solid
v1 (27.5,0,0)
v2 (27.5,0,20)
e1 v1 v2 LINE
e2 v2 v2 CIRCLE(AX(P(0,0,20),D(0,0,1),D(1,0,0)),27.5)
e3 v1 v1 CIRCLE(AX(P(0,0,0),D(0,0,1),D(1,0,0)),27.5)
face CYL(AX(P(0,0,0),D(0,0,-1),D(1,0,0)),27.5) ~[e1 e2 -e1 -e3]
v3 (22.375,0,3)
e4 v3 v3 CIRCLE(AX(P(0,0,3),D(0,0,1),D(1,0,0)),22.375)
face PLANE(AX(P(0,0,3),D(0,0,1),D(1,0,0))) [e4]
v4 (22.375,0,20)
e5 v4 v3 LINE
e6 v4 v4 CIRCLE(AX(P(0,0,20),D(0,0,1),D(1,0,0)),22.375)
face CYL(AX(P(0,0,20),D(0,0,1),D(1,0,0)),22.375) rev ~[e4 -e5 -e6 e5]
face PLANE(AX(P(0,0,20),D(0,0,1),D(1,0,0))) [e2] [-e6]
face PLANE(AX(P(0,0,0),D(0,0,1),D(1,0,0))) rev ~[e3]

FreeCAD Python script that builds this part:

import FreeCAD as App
import Part
import Sketcher

V = App.Vector

doc = App.newDocument("Part")
params = doc.addObject("Spreadsheet::Sheet", "Params")
for row, (alias, value) in enumerate([
    ("sketch1_diameter", "55 mm"),
    ("pad1_length", "20 mm"),
    ("sketch2_diameter", "44.75 mm"),
    ("pocket1_length", "17 mm"),
], start=1):
    params.set(f"A{row}", alias)
    params.set(f"B{row}", "=" + value)
    params.setAlias(f"B{row}", alias)

body = doc.addObject("PartDesign::Body", "Body")

sketch1 = body.newObject("Sketcher::SketchObject", "Sketch")
sketch1.AttachmentSupport = (doc.getObject("XY_Plane"), [""])
sketch1.MapMode = "FlatFace"
sketch1.addGeometry(Part.Circle(V(0, 0, 0), V(0, 0, 1), 27.5), False)
sketch1.addConstraint([
    Sketcher.Constraint("Coincident", 0, 3, -1, 1),
    Sketcher.Constraint("Diameter", 0, 55.0),
])
sketch1.setExpression("Constraints[1]", "Params.sketch1_diameter")
pad1 = body.newObject("PartDesign::Pad", "Pad")
pad1.Profile = sketch1
pad1.setExpression("Length", "Params.pad1_length")

sketch2 = body.newObject("Sketcher::SketchObject", "Sketch001")
sketch2.AttachmentSupport = (doc.getObject("XY_Plane"), [""])
sketch2.MapMode = "FlatFace"
sketch2.AttachmentOffset = App.Placement(V(0, 0, 20), App.Rotation())
sketch2.addGeometry(Part.Circle(V(0, 0, 0), V(0, 0, 1), 22.375), False)
sketch2.addConstraint([
    Sketcher.Constraint("Coincident", 0, 3, -1, 1),
    Sketcher.Constraint("Diameter", 0, 44.75),
])
sketch2.setExpression("Constraints[1]", "Params.sketch2_diameter")
pocket1 = body.newObject("PartDesign::Pocket", "Pocket")
pocket1.Profile = sketch2
pocket1.setExpression("Length", "Params.pocket1_length")

doc.recompute()
